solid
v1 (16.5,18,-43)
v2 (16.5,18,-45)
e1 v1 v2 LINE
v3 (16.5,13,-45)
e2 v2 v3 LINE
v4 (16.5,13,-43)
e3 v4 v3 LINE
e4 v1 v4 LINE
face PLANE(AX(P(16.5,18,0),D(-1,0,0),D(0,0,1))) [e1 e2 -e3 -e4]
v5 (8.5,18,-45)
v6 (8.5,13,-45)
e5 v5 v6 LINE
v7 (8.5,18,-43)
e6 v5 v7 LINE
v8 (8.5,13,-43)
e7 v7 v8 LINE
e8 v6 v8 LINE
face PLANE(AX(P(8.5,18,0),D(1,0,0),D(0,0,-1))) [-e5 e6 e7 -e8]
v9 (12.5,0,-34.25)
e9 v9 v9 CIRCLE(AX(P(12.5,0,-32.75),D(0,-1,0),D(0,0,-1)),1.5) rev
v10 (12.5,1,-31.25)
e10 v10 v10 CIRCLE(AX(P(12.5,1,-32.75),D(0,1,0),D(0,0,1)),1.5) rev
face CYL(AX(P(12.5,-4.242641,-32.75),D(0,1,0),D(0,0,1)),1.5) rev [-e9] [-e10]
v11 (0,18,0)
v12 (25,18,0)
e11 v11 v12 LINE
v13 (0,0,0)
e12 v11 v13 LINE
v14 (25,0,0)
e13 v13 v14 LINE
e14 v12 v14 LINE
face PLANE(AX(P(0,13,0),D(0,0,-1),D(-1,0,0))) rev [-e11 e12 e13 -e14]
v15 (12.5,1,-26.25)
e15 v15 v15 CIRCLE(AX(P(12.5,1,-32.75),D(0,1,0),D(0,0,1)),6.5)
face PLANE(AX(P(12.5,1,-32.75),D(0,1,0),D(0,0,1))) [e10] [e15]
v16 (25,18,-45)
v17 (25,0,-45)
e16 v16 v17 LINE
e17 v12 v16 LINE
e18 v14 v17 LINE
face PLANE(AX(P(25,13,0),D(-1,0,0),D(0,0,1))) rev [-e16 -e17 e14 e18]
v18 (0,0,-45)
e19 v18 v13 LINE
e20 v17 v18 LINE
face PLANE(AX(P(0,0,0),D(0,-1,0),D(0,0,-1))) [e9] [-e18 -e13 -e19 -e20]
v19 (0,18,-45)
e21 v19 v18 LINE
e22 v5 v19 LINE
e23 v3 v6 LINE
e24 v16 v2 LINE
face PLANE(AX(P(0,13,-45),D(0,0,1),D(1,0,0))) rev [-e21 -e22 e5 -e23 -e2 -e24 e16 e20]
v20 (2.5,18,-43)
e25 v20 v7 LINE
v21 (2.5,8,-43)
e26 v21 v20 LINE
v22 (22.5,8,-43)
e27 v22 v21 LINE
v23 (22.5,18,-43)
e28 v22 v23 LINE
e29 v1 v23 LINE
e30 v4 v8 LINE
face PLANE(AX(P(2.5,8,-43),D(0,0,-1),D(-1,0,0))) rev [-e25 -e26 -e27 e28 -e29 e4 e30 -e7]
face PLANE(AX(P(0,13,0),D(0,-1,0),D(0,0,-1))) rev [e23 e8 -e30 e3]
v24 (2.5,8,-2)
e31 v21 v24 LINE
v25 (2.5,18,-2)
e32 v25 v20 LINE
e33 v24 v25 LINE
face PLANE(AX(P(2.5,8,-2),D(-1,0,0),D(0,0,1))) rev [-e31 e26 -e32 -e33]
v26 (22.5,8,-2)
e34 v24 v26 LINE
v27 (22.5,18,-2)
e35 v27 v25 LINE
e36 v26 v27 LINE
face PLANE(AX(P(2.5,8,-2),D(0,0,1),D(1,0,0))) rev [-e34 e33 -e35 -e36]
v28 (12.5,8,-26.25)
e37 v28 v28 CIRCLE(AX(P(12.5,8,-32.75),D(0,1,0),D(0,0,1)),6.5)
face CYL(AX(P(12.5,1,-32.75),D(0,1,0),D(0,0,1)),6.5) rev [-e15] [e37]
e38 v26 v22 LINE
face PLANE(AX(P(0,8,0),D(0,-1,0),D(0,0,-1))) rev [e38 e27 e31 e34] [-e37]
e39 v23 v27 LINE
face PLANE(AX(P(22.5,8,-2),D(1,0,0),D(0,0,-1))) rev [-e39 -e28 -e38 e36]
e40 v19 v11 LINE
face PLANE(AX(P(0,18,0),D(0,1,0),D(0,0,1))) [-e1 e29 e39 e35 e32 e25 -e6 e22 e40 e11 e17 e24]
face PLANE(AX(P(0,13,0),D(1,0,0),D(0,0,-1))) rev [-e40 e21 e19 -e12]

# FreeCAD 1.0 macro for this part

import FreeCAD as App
import Part
import Sketcher
Q = App.Units.Quantity

doc = App.newDocument("Part")
body = doc.addObject("PartDesign::Body", "Body")

# Sketch on XZ plane
sketch1 = doc.addObject("Sketcher::SketchObject", "Sketch")
body.addObject(sketch1)
sketch1.AttachmentSupport = (doc.XZ_Plane, [""])
sketch1.MapMode = "FlatFace"
sketch1.addGeometry(Part.LineSegment(App.Vector(0, -45, 0), App.Vector(0, 0, 0)), False)
sketch1.addGeometry(Part.LineSegment(App.Vector(0, 0, 0), App.Vector(25, 0, 0)), False)
sketch1.addGeometry(Part.LineSegment(App.Vector(25, 0, 0), App.Vector(25, -45, 0)), False)
sketch1.addGeometry(Part.LineSegment(App.Vector(25, -45, 0), App.Vector(0, -45, 0)), False)
sketch1.addConstraint(Sketcher.Constraint("Coincident", 0, 2, 1, 1))
sketch1.addConstraint(Sketcher.Constraint("Coincident", 1, 2, 2, 1))
sketch1.addConstraint(Sketcher.Constraint("Coincident", 2, 2, 3, 1))
sketch1.addConstraint(Sketcher.Constraint("Coincident", 3, 2, 0, 1))
sketch1.addConstraint(Sketcher.Constraint("Vertical", 0))
sketch1.addConstraint(Sketcher.Constraint("Horizontal", 1))
sketch1.addConstraint(Sketcher.Constraint("Vertical", 2))
sketch1.addConstraint(Sketcher.Constraint("Horizontal", 3))
sketch1.addConstraint(Sketcher.Constraint("Coincident", 0, 2, -1, 1))
sketch1.addConstraint(Sketcher.Constraint("DistanceX", 1, 1, 1, 2, Q("25 mm")))
sketch1.addConstraint(Sketcher.Constraint("DistanceY", 0, 1, 0, 2, Q("45 mm")))
pad1 = doc.addObject("PartDesign::Pad", "Pad")
body.addObject(pad1)
pad1.Profile = sketch1
pad1.Length = 13
pad1.Reversed = True

# Sketch on XZ plane
sketch2 = doc.addObject("Sketcher::SketchObject", "Sketch001")
body.addObject(sketch2)
sketch2.AttachmentSupport = (doc.XZ_Plane, [""])
sketch2.MapMode = "FlatFace"
sketch2.AttachmentOffset = App.Placement(App.Vector(0, 0, -13), App.Rotation())
sketch2.addGeometry(Part.LineSegment(App.Vector(2, -43, 0), App.Vector(2, -2, 0)), False)
sketch2.addGeometry(Part.LineSegment(App.Vector(2, -2, 0), App.Vector(22, -2, 0)), False)
sketch2.addGeometry(Part.LineSegment(App.Vector(22, -2, 0), App.Vector(22, -43, 0)), False)
sketch2.addGeometry(Part.LineSegment(App.Vector(22, -43, 0), App.Vector(2, -43, 0)), False)
sketch2.addConstraint(Sketcher.Constraint("Coincident", 0, 2, 1, 1))
sketch2.addConstraint(Sketcher.Constraint("Coincident", 1, 2, 2, 1))
sketch2.addConstraint(Sketcher.Constraint("Coincident", 2, 2, 3, 1))
sketch2.addConstraint(Sketcher.Constraint("Coincident", 3, 2, 0, 1))
sketch2.addConstraint(Sketcher.Constraint("Vertical", 0))
sketch2.addConstraint(Sketcher.Constraint("Horizontal", 1))
sketch2.addConstraint(Sketcher.Constraint("Vertical", 2))
sketch2.addConstraint(Sketcher.Constraint("Horizontal", 3))
sketch2.addConstraint(Sketcher.Constraint("DistanceX", 1, 1, 1, 2, Q("20 mm")))
sketch2.addConstraint(Sketcher.Constraint("DistanceY", 0, 1, 0, 2, Q("41 mm")))
sketch2.addConstraint(Sketcher.Constraint("DistanceY", 0, 2, -1, 1, Q("2 mm")))
sketch2.addConstraint(Sketcher.Constraint("DistanceX", -1, 1, 0, 2, Q("2.5 mm")))
pocket1 = doc.addObject("PartDesign::Pocket", "Pocket")
body.addObject(pocket1)
pocket1.Profile = sketch2
pocket1.Length = 5
pocket1.Reversed = True

# Sketch on XZ plane
sketch3 = doc.addObject("Sketcher::SketchObject", "Sketch002")
body.addObject(sketch3)
sketch3.AttachmentSupport = (doc.XZ_Plane, [""])
sketch3.MapMode = "FlatFace"
sketch3.AttachmentOffset = App.Placement(App.Vector(0, 0, -8), App.Rotation())
sketch3.addGeometry(Part.Circle(App.Vector(12.5, -32.8, 0), App.Vector(0, 0, 1), 1.5), False)
sketch3.addConstraint(Sketcher.Constraint("Diameter", 0, Q("3 mm")))
sketch3.addConstraint(Sketcher.Constraint("DistanceX", -1, 1, 0, 3, Q("12.5 mm")))
sketch3.addConstraint(Sketcher.Constraint("DistanceY", 0, 3, -1, 1, Q("32.75 mm")))
pocket2 = doc.addObject("PartDesign::Pocket", "Pocket001")
body.addObject(pocket2)
pocket2.Profile = sketch3
pocket2.Length = 8
pocket2.Reversed = True

# Sketch on XZ plane
sketch4 = doc.addObject("Sketcher::SketchObject", "Sketch003")
body.addObject(sketch4)
sketch4.AttachmentSupport = (doc.XZ_Plane, [""])
sketch4.MapMode = "FlatFace"
sketch4.AttachmentOffset = App.Placement(App.Vector(0, 0, -8), App.Rotation())
sketch4.addGeometry(Part.Circle(App.Vector(12, -33, 0), App.Vector(0, 0, 1), 6), False)
sketch4.addConstraint(Sketcher.Constraint("Diameter", 0, Q("13 mm")))
sketch4.addConstraint(Sketcher.Constraint("DistanceX", -1, 1, 0, 3, Q("12.5 mm")))
sketch4.addConstraint(Sketcher.Constraint("DistanceY", 0, 3, -1, 1, Q("32.75 mm")))
pocket3 = doc.addObject("PartDesign::Pocket", "Pocket002")
body.addObject(pocket3)
pocket3.Profile = sketch4
pocket3.Length = 7
pocket3.Reversed = True

# Sketch on XZ plane
sketch5 = doc.addObject("Sketcher::SketchObject", "Sketch004")
body.addObject(sketch5)
sketch5.AttachmentSupport = (doc.XZ_Plane, [""])
sketch5.MapMode = "FlatFace"
sketch5.AttachmentOffset = App.Placement(App.Vector(0, 0, -13), App.Rotation())
sketch5.addGeometry(Part.LineSegment(App.Vector(2.5, -2, 0), App.Vector(2.5, -43, 0)), False)
sketch5.addGeometry(Part.LineSegment(App.Vector(2.5, -43, 0), App.Vector(8.5, -43, 0)), False)
sketch5.addGeometry(Part.LineSegment(App.Vector(8.5, -43, 0), App.Vector(8.5, -45, 0)), False)
sketch5.addGeometry(Part.LineSegment(App.Vector(8.5, -45, 0), App.Vector(0, -45, 0)), False)
sketch5.addGeometry(Part.LineSegment(App.Vector(0, -45, 0), App.Vector(0, 0, 0)), False)
sketch5.addGeometry(Part.LineSegment(App.Vector(0, 0, 0), App.Vector(25, 0, 0)), False)
sketch5.addGeometry(Part.LineSegment(App.Vector(25, 0, 0), App.Vector(25, -45, 0)), False)
sketch5.addGeometry(Part.LineSegment(App.Vector(25, -45, 0), App.Vector(16.5, -45, 0)), False)
sketch5.addGeometry(Part.LineSegment(App.Vector(16.5, -45, 0), App.Vector(16.5, -43, 0)), False)
sketch5.addGeometry(Part.LineSegment(App.Vector(16.5, -43, 0), App.Vector(22.5, -43, 0)), False)
sketch5.addGeometry(Part.LineSegment(App.Vector(22.5, -43, 0), App.Vector(22.5, -2, 0)), False)
sketch5.addGeometry(Part.LineSegment(App.Vector(22.5, -2, 0), App.Vector(2.5, -2, 0)), False)
sketch5.addConstraint(Sketcher.Constraint("Coincident", 0, 2, 1, 1))
sketch5.addConstraint(Sketcher.Constraint("Coincident", 1, 2, 2, 1))
sketch5.addConstraint(Sketcher.Constraint("Coincident", 2, 2, 3, 1))
sketch5.addConstraint(Sketcher.Constraint("Coincident", 3, 2, 4, 1))
sketch5.addConstraint(Sketcher.Constraint("Coincident", 4, 2, 5, 1))
sketch5.addConstraint(Sketcher.Constraint("Coincident", 5, 2, 6, 1))
sketch5.addConstraint(Sketcher.Constraint("Coincident", 6, 2, 7, 1))
sketch5.addConstraint(Sketcher.Constraint("Coincident", 7, 2, 8, 1))
sketch5.addConstraint(Sketcher.Constraint("Coincident", 8, 2, 9, 1))
sketch5.addConstraint(Sketcher.Constraint("Coincident", 9, 2, 10, 1))
sketch5.addConstraint(Sketcher.Constraint("Coincident", 10, 2, 11, 1))
sketch5.addConstraint(Sketcher.Constraint("Coincident", 11, 2, 0, 1))
sketch5.addConstraint(Sketcher.Constraint("Vertical", 0))
sketch5.addConstraint(Sketcher.Constraint("Horizontal", 1))
sketch5.addConstraint(Sketcher.Constraint("Vertical", 2))
sketch5.addConstraint(Sketcher.Constraint("Horizontal", 3))
sketch5.addConstraint(Sketcher.Constraint("Vertical", 4))
sketch5.addConstraint(Sketcher.Constraint("Horizontal", 5))
sketch5.addConstraint(Sketcher.Constraint("Vertical", 6))
sketch5.addConstraint(Sketcher.Constraint("Horizontal", 7))
sketch5.addConstraint(Sketcher.Constraint("Vertical", 8))
sketch5.addConstraint(Sketcher.Constraint("Horizontal", 9))
sketch5.addConstraint(Sketcher.Constraint("Vertical", 10))
sketch5.addConstraint(Sketcher.Constraint("Horizontal", 11))
sketch5.addConstraint(Sketcher.Constraint("Coincident", 4, 2, -1, 1))
sketch5.addConstraint(Sketcher.Constraint("Horizontal", 3, 2, 6, 2))
sketch5.addConstraint(Sketcher.Constraint("Horizontal", 1, 2, 8, 2))
sketch5.addConstraint(Sketcher.Constraint("Equal", 3, 7))
sketch5.addConstraint(Sketcher.Constraint("Equal", 1, 9))
sketch5.addConstraint(Sketcher.Constraint("DistanceX", 1, 1, 1, 2, Q("6 mm")))
sketch5.addConstraint(Sketcher.Constraint("DistanceX", 5, 1, 5, 2, Q("25 mm")))
sketch5.addConstraint(Sketcher.Constraint("DistanceX", 11, 2, 11, 1, Q("20 mm")))
sketch5.addConstraint(Sketcher.Constraint("DistanceY", 0, 2, 0, 1, Q("41 mm")))
sketch5.addConstraint(Sketcher.Constraint("DistanceY", 2, 2, 2, 1, Q("2 mm")))
sketch5.addConstraint(Sketcher.Constraint("DistanceY", 4, 1, 4, 2, Q("45 mm")))
pad2 = doc.addObject("PartDesign::Pad", "Pad001")
body.addObject(pad2)
pad2.Profile = sketch5
pad2.Length = 5
pad2.Reversed = True

doc.recompute()
